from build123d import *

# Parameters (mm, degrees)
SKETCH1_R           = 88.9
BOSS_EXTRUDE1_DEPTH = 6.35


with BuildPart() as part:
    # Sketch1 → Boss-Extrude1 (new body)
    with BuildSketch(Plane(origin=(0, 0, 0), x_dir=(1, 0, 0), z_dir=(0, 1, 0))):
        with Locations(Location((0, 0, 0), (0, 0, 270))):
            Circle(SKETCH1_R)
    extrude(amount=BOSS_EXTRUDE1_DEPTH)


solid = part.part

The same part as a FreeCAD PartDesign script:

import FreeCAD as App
import Part
import Sketcher
from FreeCAD import Vector
Q = App.Units.Quantity

doc = App.newDocument("Part")
params = doc.addObject("Spreadsheet::Sheet", "Params")
for row, (alias, value) in enumerate([
    ("sketch1_diameter", "7 in"),
    ("pad1_length", "0.25 in"),
], start=1):
    params.set(f"A{row}", alias)
    params.set(f"B{row}", "=" + value)
    params.setAlias(f"B{row}", alias)

body = doc.addObject("PartDesign::Body", "Body")

sketch1 = doc.addObject("Sketcher::SketchObject", "Sketch")
body.addObject(sketch1)
sketch1.AttachmentSupport = (doc.XZ_Plane, [""])
sketch1.MapMode = "FlatFace"
sketch1.addGeometry(Part.Circle(Vector(0, 0, 0), Vector(0, 0, 1), 89), False)
sketch1.addConstraint(Sketcher.Constraint("Coincident", 0, 3, -1, 1))
sketch1.addConstraint(Sketcher.Constraint("Diameter", 0, Q("7 in")))
sketch1.setExpression("Constraints[1]", "Params.sketch1_diameter")
pad1 = doc.addObject("PartDesign::Pad", "Pad")
body.addObject(pad1)
pad1.Profile = sketch1
pad1.setExpression("Length", "Params.pad1_length")
pad1.Reversed = True

doc.recompute()
